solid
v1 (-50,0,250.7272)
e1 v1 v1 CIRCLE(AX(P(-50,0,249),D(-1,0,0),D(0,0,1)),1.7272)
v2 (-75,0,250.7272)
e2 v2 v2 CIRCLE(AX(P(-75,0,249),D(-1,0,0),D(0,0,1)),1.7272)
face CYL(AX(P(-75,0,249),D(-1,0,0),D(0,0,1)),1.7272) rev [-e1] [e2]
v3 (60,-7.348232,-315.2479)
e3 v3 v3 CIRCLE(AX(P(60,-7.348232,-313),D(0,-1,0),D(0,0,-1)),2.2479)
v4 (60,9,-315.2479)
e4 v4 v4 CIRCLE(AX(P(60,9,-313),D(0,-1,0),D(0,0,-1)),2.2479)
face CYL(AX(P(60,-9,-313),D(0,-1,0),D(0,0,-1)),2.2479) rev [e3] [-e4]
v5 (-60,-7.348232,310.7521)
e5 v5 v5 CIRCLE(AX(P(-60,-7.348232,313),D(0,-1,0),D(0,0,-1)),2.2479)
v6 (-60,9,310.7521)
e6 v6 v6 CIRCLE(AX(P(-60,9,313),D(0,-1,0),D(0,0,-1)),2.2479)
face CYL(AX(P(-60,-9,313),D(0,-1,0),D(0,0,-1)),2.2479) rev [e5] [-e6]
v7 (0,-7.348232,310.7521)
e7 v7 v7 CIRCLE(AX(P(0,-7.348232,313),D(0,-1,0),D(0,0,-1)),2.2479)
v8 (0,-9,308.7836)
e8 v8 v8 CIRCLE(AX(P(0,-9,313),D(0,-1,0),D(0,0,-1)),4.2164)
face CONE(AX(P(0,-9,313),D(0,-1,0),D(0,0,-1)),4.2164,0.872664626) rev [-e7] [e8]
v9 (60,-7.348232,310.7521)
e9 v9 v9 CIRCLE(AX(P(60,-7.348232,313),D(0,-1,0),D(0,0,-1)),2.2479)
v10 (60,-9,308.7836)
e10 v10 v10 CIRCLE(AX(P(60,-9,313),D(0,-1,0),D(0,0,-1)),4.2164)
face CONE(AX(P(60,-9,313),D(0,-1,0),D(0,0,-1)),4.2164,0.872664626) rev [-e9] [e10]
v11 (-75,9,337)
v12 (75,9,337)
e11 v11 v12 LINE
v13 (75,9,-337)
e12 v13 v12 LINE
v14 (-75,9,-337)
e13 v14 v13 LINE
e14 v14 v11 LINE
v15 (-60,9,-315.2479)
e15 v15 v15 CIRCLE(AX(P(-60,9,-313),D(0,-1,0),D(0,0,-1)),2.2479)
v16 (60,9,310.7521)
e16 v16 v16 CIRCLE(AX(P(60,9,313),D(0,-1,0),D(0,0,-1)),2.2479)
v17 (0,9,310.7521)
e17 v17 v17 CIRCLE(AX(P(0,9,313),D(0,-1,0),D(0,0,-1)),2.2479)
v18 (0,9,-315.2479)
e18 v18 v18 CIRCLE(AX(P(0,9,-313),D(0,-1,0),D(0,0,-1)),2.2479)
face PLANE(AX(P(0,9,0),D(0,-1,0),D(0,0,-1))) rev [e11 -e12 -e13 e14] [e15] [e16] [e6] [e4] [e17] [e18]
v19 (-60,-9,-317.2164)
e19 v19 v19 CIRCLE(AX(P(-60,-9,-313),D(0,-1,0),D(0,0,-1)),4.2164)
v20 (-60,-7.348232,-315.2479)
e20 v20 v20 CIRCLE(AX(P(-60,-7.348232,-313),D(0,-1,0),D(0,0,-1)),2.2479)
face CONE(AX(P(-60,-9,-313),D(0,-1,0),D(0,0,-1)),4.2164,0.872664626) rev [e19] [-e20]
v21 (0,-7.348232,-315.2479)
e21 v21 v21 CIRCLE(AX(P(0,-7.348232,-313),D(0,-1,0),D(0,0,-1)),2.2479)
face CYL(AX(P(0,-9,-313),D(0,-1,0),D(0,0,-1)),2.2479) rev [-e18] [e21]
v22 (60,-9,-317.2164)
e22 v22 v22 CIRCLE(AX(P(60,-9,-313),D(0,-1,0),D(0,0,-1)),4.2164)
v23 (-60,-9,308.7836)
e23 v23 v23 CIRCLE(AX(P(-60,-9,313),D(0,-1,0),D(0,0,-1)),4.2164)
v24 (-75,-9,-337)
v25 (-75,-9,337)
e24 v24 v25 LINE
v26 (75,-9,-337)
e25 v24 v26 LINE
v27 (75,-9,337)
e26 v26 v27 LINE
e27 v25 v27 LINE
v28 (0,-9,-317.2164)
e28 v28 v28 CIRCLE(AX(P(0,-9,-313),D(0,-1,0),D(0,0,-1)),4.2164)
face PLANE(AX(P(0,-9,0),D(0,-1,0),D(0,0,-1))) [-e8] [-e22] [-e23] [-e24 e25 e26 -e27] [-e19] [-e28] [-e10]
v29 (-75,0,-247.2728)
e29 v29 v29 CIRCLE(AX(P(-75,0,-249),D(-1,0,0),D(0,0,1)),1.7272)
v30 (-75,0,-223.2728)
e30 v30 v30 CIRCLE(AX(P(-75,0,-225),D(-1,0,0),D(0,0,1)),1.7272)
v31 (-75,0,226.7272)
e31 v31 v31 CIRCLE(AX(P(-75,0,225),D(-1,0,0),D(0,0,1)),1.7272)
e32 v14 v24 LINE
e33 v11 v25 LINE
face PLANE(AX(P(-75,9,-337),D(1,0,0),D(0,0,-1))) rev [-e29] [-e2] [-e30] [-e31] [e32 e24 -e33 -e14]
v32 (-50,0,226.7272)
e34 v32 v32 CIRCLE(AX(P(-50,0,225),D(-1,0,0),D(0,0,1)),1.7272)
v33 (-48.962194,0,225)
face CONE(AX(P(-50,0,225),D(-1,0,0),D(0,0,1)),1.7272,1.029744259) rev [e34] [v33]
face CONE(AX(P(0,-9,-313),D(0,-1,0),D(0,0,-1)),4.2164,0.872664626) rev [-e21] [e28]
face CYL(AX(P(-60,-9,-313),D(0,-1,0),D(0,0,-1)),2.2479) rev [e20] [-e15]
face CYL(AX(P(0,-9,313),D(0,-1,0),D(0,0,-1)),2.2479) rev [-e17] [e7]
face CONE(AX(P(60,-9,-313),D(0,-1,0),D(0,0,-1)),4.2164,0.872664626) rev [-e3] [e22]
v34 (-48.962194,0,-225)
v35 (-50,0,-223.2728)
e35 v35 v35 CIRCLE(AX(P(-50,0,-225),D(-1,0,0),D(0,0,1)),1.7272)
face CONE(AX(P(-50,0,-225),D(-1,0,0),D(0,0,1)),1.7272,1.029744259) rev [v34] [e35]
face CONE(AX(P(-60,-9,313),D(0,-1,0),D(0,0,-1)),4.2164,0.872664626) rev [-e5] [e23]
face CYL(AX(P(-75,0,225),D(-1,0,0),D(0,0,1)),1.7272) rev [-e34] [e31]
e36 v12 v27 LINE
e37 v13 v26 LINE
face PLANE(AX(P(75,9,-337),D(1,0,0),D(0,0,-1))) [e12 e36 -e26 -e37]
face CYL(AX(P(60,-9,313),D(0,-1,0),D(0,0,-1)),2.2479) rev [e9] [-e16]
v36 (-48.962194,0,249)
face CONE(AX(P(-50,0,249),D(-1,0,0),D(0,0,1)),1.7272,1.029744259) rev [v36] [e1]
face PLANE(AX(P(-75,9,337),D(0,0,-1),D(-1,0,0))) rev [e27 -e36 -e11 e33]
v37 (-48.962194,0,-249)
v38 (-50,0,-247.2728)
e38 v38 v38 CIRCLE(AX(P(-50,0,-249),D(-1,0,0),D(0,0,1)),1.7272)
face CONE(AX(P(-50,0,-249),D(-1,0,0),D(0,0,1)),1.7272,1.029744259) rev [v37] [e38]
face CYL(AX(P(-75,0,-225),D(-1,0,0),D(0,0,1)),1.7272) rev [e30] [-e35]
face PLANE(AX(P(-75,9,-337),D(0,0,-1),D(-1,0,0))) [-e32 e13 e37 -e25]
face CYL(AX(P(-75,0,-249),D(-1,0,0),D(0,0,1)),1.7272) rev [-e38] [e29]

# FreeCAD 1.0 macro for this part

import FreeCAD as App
import Part
import Sketcher
from FreeCAD import Vector
Q = App.Units.Quantity


def add_polygon(sketch, points):
    """Adds a closed chain of lines whose ends are joined by coincident constraints."""
    first, n = sketch.GeometryCount, len(points)
    for a, b in zip(points, points[1:] + points[:1]):
        sketch.addGeometry(Part.LineSegment(App.Vector(*a, 0), App.Vector(*b, 0)), False)
    for i in range(n):
        sketch.addConstraint(Sketcher.Constraint("Coincident", first + i, 2, first + (i + 1) % n, 1))

doc = App.newDocument("Part")
body = doc.addObject("PartDesign::Body", "Body")

sketch1 = doc.addObject("Sketcher::SketchObject", "Sketch")
body.addObject(sketch1)
sketch1.AttachmentSupport = (doc.XZ_Plane, [""])
sketch1.MapMode = "FlatFace"
add_polygon(sketch1, [(-75, -337), (-75, 337), (75, 337), (75, -337)])
sketch1.addConstraint([
    Sketcher.Constraint("Vertical", 0),
    Sketcher.Constraint("Horizontal", 1),
    Sketcher.Constraint("Vertical", 2),
    Sketcher.Constraint("Horizontal", 3),
    Sketcher.Constraint("Symmetric", 0, 2, 2, 2, -1, 1),
    Sketcher.Constraint("DistanceX", 1, 1, 1, 2, 150.0),
    Sketcher.Constraint("DistanceY", 0, 1, 0, 2, 674.0),
])
pad1 = doc.addObject("PartDesign::Pad", "Pad")
body.addObject(pad1)
pad1.Profile = sketch1
pad1.Length = 18
pad1.Midplane = True

sketch2 = doc.addObject("Sketcher::SketchObject", "Sketch001")
body.addObject(sketch2)
sketch2.AttachmentSupport = (doc.XZ_Plane, [""])
sketch2.MapMode = "FlatFace"
sketch2.AttachmentOffset = App.Placement(Vector(0, 0, 9), App.Rotation())
sketch2.addGeometry([
    Part.Circle(Vector(60, 313, 0), Vector(0, 0, 1), 2.2479),
    Part.Circle(Vector(0, 313, 0), Vector(0, 0, 1), 2.2479),
    Part.Circle(Vector(-60, 313, 0), Vector(0, 0, 1), 2.2479),
], False)
sketch2.addConstraint([
    Sketcher.Constraint("Equal", 0, 1),
    Sketcher.Constraint("Equal", 1, 2),
    Sketcher.Constraint("Symmetric", 0, 3, 2, 3, -2),
    Sketcher.Constraint("PointOnObject", 1, 3, -2),
    Sketcher.Constraint("Horizontal", 0, 3, 1, 3),
    Sketcher.Constraint("DistanceX", -1, 1, 0, 3, 60.0),
    Sketcher.Constraint("DistanceY", -1, 1, 0, 3, 313.0),
    Sketcher.Constraint("Diameter", 0, 4.4958),
])
doc.recompute()
hole = doc.addObject("PartDesign::Hole", "Hole")
body.addObject(hole)
hole.Profile = sketch2
hole.ThreadType = "None"
hole.Diameter = 4.4958
hole.DepthType = "ThroughAll"
hole.HoleCutType = "Countersink"
hole.HoleCutDiameter = 8.4328
hole.HoleCutCountersinkAngle = 100

sketch3 = doc.addObject("Sketcher::SketchObject", "Sketch002")
body.addObject(sketch3)
sketch3.AttachmentSupport = (doc.XZ_Plane, [""])
sketch3.MapMode = "FlatFace"
add_polygon(sketch3, [(-48.962194, 249), (-75, 249), (-75, 250.7272), (-50, 250.7272)])
sketch3.addGeometry(Part.LineSegment(Vector(-75, 249, 0), Vector(-48.962194, 249, 0)), True)
sketch3.addConstraint([
    Sketcher.Constraint("Horizontal", 0),
    Sketcher.Constraint("Vertical", 1),
    Sketcher.Constraint("Horizontal", 2),
    Sketcher.Constraint("Horizontal", 4),
    Sketcher.Constraint("Coincident", 4, 1, 0, 2),
    Sketcher.Constraint("Equal", 0, 4),
    Sketcher.Constraint("DistanceX", 2, 1, 2, 2, 25.0),
    Sketcher.Constraint("Angle", 3, Q("-59 deg")),
    Sketcher.Constraint("DistanceX", 0, 2, -1, 1, 75.0),
    Sketcher.Constraint("DistanceY", -1, 1, 0, 2, 249.0),
    Sketcher.Constraint("DistanceY", 1, 1, 1, 2, 1.7272),
])
groove = doc.addObject("PartDesign::Groove", "Groove")
body.addObject(groove)
groove.Profile = sketch3
groove.ReferenceAxis = (sketch3, ["Axis0"])
groove.Angle = 360
doc.recompute()

linearpattern = doc.addObject("PartDesign::LinearPattern", "LinearPattern")
body.addObject(linearpattern)
linearpattern.Originals = [groove]
linearpattern.Direction = (doc.Z_Axis, [""])
linearpattern.Mode = "offset"
linearpattern.Offset = 24
linearpattern.Occurrences = 2
linearpattern.Reversed = True
body.Tip = linearpattern
doc.recompute()

mirrored = doc.addObject("PartDesign::Mirrored", "Mirrored")
body.addObject(mirrored)
mirrored.Originals = [hole, groove]
mirrored.MirrorPlane = (doc.XY_Plane, [""])
body.Tip = mirrored

sketch4 = doc.addObject("Sketcher::SketchObject", "Sketch003")
body.addObject(sketch4)
sketch4.AttachmentSupport = (doc.XZ_Plane, [""])
sketch4.MapMode = "FlatFace"
add_polygon(sketch4, [(-75, -225), (-48.962194, -225), (-50, -226.7272), (-75, -226.7272)])
sketch4.addGeometry(Part.LineSegment(Vector(-48.962194, -225, 0), Vector(-75, -225, 0)), True)
sketch4.addConstraint([
    Sketcher.Constraint("Horizontal", 0),
    Sketcher.Constraint("Horizontal", 2),
    Sketcher.Constraint("Vertical", 3),
    Sketcher.Constraint("Horizontal", 4),
    Sketcher.Constraint("Coincident", 4, 1, 0, 2),
    Sketcher.Constraint("Vertical", 2, 2, 4, 2),
    Sketcher.Constraint("DistanceX", 2, 2, 2, 1, 25.0),
    Sketcher.Constraint("Angle", 1, Q("-121 deg")),
    Sketcher.Constraint("DistanceY", 0, 2, -1, 1, 225.0),
    Sketcher.Constraint("DistanceX", 1, 2, -1, 1, 50.0),
    Sketcher.Constraint("DistanceY", 3, 1, 3, 2, 1.7272),
])
groove2 = doc.addObject("PartDesign::Groove", "Groove001")
body.addObject(groove2)
groove2.Profile = sketch4
groove2.ReferenceAxis = (sketch4, ["Axis0"])
groove2.Angle = 360

doc.recompute()
